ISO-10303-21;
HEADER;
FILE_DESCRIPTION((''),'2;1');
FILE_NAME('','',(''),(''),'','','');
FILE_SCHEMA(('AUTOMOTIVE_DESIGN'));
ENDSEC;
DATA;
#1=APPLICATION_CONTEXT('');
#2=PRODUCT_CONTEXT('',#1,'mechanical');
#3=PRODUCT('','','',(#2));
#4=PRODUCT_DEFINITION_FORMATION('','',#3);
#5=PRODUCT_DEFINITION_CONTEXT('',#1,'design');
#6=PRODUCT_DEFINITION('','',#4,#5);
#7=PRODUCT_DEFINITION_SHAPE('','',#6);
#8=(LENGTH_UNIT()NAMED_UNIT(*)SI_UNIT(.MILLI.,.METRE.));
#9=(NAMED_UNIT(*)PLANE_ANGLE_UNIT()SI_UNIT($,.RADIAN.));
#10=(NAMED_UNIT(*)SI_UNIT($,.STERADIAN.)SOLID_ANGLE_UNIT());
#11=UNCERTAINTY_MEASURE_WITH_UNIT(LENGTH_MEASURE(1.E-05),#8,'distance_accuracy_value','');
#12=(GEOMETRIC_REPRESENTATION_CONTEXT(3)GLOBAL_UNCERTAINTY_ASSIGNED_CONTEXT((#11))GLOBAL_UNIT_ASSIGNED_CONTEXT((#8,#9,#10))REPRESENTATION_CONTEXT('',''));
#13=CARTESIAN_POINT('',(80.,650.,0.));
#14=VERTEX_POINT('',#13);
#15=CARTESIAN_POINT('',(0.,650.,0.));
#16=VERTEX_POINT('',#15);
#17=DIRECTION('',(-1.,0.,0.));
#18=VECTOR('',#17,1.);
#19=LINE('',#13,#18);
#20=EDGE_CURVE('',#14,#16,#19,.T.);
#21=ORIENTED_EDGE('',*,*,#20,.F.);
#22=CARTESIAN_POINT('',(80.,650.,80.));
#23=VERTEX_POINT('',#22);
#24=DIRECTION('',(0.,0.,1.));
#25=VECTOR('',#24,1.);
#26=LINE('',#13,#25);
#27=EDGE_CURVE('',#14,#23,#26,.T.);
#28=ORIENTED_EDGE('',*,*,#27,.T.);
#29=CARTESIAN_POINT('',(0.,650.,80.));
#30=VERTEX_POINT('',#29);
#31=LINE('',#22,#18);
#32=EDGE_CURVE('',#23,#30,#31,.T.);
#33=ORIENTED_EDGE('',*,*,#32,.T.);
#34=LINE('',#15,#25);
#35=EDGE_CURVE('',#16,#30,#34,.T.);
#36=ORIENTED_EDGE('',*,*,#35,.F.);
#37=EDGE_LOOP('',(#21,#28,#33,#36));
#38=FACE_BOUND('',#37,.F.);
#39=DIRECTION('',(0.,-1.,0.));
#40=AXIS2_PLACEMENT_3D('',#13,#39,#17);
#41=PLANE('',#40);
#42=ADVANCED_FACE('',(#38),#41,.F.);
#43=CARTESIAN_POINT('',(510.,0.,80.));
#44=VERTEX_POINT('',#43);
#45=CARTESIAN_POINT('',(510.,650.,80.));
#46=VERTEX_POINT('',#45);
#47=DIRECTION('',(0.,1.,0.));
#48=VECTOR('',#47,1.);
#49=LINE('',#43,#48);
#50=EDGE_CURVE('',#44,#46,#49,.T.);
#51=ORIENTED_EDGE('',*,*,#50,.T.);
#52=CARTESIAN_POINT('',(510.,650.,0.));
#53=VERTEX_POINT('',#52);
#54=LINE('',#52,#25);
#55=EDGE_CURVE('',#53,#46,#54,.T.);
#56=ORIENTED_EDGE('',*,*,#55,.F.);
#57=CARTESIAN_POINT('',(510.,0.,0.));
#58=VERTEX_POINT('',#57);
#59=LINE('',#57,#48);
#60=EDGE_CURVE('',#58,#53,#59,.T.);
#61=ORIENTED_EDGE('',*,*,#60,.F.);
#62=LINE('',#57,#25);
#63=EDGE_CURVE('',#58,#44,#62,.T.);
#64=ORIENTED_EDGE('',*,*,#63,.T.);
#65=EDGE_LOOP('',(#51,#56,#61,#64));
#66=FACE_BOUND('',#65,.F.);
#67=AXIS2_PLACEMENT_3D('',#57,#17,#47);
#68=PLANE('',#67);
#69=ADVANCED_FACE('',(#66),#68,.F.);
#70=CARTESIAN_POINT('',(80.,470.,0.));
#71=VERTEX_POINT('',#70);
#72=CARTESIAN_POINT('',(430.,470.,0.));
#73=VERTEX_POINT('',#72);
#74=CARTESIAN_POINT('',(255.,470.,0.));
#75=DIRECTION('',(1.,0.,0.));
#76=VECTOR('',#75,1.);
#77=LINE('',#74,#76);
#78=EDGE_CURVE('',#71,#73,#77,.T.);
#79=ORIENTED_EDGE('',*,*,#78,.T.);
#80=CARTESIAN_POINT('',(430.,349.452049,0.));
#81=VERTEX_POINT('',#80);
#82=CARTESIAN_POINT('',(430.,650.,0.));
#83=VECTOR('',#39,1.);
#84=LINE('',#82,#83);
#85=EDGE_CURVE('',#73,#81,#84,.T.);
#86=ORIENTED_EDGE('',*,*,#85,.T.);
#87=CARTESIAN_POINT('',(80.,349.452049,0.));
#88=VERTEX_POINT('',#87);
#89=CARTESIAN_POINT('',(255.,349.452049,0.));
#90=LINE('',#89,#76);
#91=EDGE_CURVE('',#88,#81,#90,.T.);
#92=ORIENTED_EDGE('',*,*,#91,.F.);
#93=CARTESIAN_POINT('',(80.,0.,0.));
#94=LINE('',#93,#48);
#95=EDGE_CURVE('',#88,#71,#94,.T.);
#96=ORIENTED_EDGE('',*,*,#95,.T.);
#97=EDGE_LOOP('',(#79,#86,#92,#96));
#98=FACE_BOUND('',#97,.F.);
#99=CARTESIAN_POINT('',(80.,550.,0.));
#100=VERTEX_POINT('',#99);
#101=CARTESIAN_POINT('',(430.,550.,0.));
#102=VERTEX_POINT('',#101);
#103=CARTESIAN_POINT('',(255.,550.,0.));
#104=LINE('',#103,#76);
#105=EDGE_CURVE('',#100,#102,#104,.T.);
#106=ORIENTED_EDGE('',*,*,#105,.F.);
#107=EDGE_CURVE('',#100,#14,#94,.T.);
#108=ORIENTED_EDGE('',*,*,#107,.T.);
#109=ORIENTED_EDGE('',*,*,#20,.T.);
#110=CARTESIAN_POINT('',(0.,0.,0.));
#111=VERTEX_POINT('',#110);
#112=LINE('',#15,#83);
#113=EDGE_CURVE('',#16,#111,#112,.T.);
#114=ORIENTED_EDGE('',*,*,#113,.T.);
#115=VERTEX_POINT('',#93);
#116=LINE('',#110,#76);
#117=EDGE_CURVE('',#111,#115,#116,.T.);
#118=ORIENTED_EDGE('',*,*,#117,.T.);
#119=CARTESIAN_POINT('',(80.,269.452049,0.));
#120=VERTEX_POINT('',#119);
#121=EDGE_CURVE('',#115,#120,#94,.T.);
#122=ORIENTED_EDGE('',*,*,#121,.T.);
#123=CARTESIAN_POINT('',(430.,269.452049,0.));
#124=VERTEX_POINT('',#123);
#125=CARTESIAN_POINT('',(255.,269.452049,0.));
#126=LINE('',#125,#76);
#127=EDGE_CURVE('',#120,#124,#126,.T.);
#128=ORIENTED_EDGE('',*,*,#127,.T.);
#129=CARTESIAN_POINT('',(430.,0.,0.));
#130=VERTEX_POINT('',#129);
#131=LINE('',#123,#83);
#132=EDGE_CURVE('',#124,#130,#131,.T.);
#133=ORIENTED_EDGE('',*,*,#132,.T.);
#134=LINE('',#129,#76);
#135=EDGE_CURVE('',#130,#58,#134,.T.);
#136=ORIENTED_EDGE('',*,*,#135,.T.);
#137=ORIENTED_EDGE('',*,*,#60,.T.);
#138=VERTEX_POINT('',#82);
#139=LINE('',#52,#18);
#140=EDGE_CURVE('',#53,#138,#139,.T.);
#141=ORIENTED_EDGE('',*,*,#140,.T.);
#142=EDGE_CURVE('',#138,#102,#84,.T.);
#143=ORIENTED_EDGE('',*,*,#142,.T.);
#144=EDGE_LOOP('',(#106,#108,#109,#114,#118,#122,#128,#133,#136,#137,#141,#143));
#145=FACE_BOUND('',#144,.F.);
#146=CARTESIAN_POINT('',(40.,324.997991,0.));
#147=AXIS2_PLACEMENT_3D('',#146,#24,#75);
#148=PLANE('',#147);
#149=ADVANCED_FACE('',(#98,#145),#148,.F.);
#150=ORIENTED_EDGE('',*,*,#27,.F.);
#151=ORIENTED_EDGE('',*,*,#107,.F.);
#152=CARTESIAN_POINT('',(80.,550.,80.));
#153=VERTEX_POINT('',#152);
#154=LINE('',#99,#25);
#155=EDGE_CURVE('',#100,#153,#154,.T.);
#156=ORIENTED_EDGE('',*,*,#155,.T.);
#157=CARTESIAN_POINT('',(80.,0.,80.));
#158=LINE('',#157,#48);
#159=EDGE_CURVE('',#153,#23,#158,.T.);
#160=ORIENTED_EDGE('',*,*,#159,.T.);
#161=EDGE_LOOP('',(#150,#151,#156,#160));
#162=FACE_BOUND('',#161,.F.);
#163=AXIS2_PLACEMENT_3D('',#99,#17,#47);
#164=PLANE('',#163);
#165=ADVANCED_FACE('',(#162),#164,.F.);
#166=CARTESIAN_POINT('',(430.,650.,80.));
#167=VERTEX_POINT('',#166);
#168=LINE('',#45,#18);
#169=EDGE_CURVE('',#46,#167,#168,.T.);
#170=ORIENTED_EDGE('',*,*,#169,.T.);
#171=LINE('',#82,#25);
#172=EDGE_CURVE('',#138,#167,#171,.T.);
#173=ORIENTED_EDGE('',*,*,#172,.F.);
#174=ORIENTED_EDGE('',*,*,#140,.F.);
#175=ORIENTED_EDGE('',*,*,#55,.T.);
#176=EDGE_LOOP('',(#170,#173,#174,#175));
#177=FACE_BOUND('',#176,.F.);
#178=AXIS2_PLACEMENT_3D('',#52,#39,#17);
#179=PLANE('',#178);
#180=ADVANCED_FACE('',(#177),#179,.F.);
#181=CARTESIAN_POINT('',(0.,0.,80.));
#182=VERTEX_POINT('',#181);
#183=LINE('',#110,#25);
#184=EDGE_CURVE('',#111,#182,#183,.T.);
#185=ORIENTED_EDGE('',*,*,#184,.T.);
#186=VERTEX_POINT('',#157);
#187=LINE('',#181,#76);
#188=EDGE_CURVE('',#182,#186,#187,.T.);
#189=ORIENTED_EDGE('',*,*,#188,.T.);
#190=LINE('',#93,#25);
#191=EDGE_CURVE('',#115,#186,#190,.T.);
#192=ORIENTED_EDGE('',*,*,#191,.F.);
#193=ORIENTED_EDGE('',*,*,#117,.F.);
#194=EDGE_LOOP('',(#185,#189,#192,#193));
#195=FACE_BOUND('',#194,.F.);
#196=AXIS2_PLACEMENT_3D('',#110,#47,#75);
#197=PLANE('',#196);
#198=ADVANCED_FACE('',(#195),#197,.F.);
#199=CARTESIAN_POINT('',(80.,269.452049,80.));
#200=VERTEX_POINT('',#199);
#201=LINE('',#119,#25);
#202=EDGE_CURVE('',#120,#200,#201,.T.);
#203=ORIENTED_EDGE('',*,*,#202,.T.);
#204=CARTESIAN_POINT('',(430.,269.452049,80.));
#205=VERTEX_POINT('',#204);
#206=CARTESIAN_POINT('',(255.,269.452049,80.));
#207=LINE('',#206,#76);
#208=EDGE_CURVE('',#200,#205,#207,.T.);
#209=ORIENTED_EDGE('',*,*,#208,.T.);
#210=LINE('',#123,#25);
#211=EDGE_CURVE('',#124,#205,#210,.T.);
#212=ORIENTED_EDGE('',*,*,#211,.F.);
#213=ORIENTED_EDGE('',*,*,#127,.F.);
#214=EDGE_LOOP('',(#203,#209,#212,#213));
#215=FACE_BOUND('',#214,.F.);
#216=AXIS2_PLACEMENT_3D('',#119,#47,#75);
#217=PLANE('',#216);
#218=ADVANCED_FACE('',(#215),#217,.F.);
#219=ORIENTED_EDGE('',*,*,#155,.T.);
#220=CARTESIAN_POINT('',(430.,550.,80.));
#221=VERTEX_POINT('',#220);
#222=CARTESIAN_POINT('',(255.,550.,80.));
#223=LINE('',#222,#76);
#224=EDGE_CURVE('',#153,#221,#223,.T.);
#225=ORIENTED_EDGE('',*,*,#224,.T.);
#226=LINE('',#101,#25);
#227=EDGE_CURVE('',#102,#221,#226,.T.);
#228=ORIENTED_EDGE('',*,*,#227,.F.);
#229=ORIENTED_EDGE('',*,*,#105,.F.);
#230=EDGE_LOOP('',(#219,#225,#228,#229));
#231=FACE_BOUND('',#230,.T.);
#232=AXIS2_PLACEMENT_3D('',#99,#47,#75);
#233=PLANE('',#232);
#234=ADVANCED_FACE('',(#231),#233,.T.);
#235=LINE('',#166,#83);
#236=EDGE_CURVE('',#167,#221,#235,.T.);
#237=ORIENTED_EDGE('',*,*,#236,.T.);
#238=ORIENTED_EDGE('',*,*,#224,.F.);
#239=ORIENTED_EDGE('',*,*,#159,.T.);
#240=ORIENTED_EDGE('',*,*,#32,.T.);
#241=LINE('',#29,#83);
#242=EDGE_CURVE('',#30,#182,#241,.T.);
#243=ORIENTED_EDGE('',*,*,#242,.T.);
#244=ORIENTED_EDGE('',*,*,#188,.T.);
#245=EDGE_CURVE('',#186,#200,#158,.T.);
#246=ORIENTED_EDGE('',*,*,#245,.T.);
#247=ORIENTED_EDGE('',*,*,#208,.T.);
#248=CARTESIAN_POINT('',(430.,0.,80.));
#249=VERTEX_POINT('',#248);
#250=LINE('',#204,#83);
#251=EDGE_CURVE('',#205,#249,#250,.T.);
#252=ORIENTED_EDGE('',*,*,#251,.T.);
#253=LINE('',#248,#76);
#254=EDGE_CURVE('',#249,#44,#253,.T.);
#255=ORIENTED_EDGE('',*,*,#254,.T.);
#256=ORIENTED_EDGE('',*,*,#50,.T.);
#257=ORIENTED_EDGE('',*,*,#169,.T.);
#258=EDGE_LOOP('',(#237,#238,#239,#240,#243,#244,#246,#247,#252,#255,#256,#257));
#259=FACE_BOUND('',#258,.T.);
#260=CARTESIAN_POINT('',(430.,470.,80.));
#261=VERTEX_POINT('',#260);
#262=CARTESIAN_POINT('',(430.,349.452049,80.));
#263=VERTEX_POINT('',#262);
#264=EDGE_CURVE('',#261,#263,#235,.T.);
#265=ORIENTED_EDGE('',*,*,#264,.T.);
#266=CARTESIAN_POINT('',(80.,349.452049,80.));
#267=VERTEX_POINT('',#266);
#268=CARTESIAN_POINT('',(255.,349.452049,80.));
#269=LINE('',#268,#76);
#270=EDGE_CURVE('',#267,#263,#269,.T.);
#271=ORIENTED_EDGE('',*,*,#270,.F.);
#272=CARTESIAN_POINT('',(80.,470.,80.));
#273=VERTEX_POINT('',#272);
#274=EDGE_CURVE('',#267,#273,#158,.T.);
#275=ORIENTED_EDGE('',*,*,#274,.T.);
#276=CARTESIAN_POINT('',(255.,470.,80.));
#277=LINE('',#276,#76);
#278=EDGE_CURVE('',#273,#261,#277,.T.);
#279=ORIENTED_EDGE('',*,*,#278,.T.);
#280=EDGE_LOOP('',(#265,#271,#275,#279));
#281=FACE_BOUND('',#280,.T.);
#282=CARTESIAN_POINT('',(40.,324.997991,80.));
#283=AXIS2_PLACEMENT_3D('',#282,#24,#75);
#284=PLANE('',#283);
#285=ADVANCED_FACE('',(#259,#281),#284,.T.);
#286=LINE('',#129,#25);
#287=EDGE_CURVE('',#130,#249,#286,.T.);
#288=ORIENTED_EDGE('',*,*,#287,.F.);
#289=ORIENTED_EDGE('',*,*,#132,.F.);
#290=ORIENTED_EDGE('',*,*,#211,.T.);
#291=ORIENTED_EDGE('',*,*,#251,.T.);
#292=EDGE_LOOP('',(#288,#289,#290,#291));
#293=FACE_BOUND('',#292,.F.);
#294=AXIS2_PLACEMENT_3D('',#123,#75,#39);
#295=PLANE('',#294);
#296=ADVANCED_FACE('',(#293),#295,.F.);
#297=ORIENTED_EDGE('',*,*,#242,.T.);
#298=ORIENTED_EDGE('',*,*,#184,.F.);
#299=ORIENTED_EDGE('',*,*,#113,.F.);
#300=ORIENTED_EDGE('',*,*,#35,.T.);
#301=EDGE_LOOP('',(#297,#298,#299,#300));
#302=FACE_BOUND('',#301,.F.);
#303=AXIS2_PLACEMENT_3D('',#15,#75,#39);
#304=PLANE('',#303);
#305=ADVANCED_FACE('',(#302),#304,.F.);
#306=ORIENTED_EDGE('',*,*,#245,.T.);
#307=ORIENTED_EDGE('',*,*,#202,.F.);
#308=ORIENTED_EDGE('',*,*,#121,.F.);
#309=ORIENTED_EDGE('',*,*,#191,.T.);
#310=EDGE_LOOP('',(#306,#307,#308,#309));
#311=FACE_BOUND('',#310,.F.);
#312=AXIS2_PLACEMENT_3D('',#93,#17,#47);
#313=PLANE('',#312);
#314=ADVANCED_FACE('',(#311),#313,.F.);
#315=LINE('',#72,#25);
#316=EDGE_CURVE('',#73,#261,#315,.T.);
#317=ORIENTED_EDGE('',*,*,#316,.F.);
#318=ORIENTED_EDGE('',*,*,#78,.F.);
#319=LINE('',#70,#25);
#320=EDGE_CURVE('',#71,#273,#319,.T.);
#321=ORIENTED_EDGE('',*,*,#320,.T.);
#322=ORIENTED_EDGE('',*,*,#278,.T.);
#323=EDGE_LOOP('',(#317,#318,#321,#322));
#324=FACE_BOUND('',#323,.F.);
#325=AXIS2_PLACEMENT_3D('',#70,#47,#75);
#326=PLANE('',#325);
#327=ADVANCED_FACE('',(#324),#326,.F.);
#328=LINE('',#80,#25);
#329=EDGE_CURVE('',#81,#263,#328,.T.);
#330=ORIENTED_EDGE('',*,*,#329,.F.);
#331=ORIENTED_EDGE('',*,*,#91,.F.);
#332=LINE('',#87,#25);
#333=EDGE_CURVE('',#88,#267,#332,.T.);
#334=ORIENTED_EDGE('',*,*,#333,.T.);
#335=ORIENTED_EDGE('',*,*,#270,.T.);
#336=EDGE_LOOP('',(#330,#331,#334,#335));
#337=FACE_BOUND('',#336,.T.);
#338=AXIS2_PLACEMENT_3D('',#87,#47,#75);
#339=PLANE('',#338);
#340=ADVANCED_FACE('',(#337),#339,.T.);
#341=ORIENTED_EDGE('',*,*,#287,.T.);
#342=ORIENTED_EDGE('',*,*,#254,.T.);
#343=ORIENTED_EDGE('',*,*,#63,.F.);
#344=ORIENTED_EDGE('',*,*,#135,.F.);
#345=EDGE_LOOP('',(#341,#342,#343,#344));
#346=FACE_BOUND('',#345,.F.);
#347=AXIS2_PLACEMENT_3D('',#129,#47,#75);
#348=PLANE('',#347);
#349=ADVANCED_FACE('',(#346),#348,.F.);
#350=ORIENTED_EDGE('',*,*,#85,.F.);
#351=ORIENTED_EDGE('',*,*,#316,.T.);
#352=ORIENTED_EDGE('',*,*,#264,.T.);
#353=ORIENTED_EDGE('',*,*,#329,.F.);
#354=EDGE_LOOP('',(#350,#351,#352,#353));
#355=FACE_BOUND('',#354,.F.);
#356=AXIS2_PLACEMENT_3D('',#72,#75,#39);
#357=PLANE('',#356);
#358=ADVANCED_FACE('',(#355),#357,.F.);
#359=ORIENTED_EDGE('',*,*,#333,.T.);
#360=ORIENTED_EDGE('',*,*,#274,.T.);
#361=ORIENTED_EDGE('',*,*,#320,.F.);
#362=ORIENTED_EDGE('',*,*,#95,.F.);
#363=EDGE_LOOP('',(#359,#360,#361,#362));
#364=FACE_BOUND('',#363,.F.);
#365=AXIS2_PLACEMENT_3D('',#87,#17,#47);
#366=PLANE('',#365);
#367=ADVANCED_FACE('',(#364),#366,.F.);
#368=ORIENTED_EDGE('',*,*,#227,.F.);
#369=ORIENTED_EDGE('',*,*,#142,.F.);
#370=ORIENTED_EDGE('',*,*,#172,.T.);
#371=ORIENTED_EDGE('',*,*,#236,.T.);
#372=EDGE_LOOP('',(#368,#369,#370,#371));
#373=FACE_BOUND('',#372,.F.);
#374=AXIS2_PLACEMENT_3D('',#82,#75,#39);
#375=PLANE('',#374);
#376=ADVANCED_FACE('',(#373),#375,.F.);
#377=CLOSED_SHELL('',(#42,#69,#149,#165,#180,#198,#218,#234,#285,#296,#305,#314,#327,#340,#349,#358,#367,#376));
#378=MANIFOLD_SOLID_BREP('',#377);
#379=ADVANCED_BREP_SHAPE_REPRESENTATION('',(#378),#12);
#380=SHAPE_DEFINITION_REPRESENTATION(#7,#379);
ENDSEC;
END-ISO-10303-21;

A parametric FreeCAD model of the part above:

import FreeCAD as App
import Part
import Sketcher
Q = App.Units.Quantity

doc = App.newDocument("Part")
body = doc.addObject("PartDesign::Body", "Body")

sketch1 = body.newObject("Sketcher::SketchObject", "Sketch")
sketch1.AttachmentSupport = (doc.getObject("XY_Plane"), [""])
sketch1.MapMode = "FlatFace"
sketch1.addGeometry(Part.LineSegment(App.Vector(0, 650, 0), App.Vector(0, 0, 0)), False)
sketch1.addGeometry(Part.LineSegment(App.Vector(0, 0, 0), App.Vector(80, 0, 0)), False)
sketch1.addGeometry(Part.LineSegment(App.Vector(80, 0, 0), App.Vector(80, 269, 0)), False)
sketch1.addGeometry(Part.LineSegment(App.Vector(80, 269, 0), App.Vector(430, 269, 0)), False)
sketch1.addGeometry(Part.LineSegment(App.Vector(430, 269, 0), App.Vector(430, 0, 0)), False)
sketch1.addGeometry(Part.LineSegment(App.Vector(430, 0, 0), App.Vector(510, 0, 0)), False)
sketch1.addGeometry(Part.LineSegment(App.Vector(510, 0, 0), App.Vector(510, 650, 0)), False)
sketch1.addGeometry(Part.LineSegment(App.Vector(510, 650, 0), App.Vector(430, 650, 0)), False)
sketch1.addGeometry(Part.LineSegment(App.Vector(430, 650, 0), App.Vector(430, 550, 0)), False)
sketch1.addGeometry(Part.LineSegment(App.Vector(430, 550, 0), App.Vector(80, 550, 0)), False)
sketch1.addGeometry(Part.LineSegment(App.Vector(80, 550, 0), App.Vector(80, 650, 0)), False)
sketch1.addGeometry(Part.LineSegment(App.Vector(80, 650, 0), App.Vector(0, 650, 0)), False)
sketch1.addGeometry(Part.LineSegment(App.Vector(430, 470, 0), App.Vector(430, 349, 0)), False)
sketch1.addGeometry(Part.LineSegment(App.Vector(430, 349, 0), App.Vector(80, 349, 0)), False)
sketch1.addGeometry(Part.LineSegment(App.Vector(80, 349, 0), App.Vector(80, 470, 0)), False)
sketch1.addGeometry(Part.LineSegment(App.Vector(80, 470, 0), App.Vector(430, 470, 0)), False)
sketch1.addConstraint(Sketcher.Constraint("Coincident", 0, 2, 1, 1))
sketch1.addConstraint(Sketcher.Constraint("Coincident", 1, 2, 2, 1))
sketch1.addConstraint(Sketcher.Constraint("Coincident", 2, 2, 3, 1))
sketch1.addConstraint(Sketcher.Constraint("Coincident", 3, 2, 4, 1))
sketch1.addConstraint(Sketcher.Constraint("Coincident", 4, 2, 5, 1))
sketch1.addConstraint(Sketcher.Constraint("Coincident", 5, 2, 6, 1))
sketch1.addConstraint(Sketcher.Constraint("Coincident", 6, 2, 7, 1))
sketch1.addConstraint(Sketcher.Constraint("Coincident", 7, 2, 8, 1))
sketch1.addConstraint(Sketcher.Constraint("Coincident", 8, 2, 9, 1))
sketch1.addConstraint(Sketcher.Constraint("Coincident", 9, 2, 10, 1))
sketch1.addConstraint(Sketcher.Constraint("Coincident", 10, 2, 11, 1))
sketch1.addConstraint(Sketcher.Constraint("Coincident", 11, 2, 0, 1))
sketch1.addConstraint(Sketcher.Constraint("Coincident", 12, 2, 13, 1))
sketch1.addConstraint(Sketcher.Constraint("Coincident", 13, 2, 14, 1))
sketch1.addConstraint(Sketcher.Constraint("Coincident", 14, 2, 15, 1))
sketch1.addConstraint(Sketcher.Constraint("Coincident", 15, 2, 12, 1))
sketch1.addConstraint(Sketcher.Constraint("Vertical", 0))
sketch1.addConstraint(Sketcher.Constraint("Horizontal", 1))
sketch1.addConstraint(Sketcher.Constraint("Vertical", 2))
sketch1.addConstraint(Sketcher.Constraint("Horizontal", 3))
sketch1.addConstraint(Sketcher.Constraint("Vertical", 4))
sketch1.addConstraint(Sketcher.Constraint("Horizontal", 5))
sketch1.addConstraint(Sketcher.Constraint("Vertical", 6))
sketch1.addConstraint(Sketcher.Constraint("Horizontal", 7))
sketch1.addConstraint(Sketcher.Constraint("Vertical", 8))
sketch1.addConstraint(Sketcher.Constraint("Horizontal", 9))
sketch1.addConstraint(Sketcher.Constraint("Vertical", 10))
sketch1.addConstraint(Sketcher.Constraint("Horizontal", 11))
sketch1.addConstraint(Sketcher.Constraint("Vertical", 12))
sketch1.addConstraint(Sketcher.Constraint("Horizontal", 13))
sketch1.addConstraint(Sketcher.Constraint("Vertical", 14))
sketch1.addConstraint(Sketcher.Constraint("Horizontal", 15))
sketch1.addConstraint(Sketcher.Constraint("Coincident", 0, 2, -1, 1))
sketch1.addConstraint(Sketcher.Constraint("PointOnObject", 4, 2, -1))
sketch1.addConstraint(Sketcher.Constraint("Horizontal", 7, 2, 10, 2))
sketch1.addConstraint(Sketcher.Constraint("Vertical", 4, 2, 7, 2))
sketch1.addConstraint(Sketcher.Constraint("Vertical", 2, 2, 9, 2))
sketch1.addConstraint(Sketcher.Constraint("Vertical", 8, 2, 12, 2))
sketch1.addConstraint(Sketcher.Constraint("Vertical", 10, 2, 13, 2))
sketch1.addConstraint(Sketcher.Constraint("Equal", 1, 5))
sketch1.addConstraint(Sketcher.Constraint("DistanceX", 1, 1, 1, 2, Q("80 mm")))
sketch1.addConstraint(Sketcher.Constraint("DistanceX", 3, 1, 3, 2, Q("350 mm")))
sketch1.addConstraint(Sketcher.Constraint("DistanceY", 0, 2, 0, 1, Q("650 mm")))
sketch1.addConstraint(Sketcher.Constraint("DistanceY", 8, 2, 8, 1, Q("100 mm")))
sketch1.addConstraint(Sketcher.Constraint("DistanceY", -1, 1, 14, 2, Q("470 mm")))
sketch1.addConstraint(Sketcher.Constraint("DistanceY", 3, 2, 12, 2, Q("80 mm")))
sketch1.addConstraint(Sketcher.Constraint("DistanceY", 2, 1, 2, 2, Q("269.452049 mm")))
pad1 = body.newObject("PartDesign::Pad", "Pad")
pad1.Profile = sketch1
pad1.Length = 80

doc.recompute()
